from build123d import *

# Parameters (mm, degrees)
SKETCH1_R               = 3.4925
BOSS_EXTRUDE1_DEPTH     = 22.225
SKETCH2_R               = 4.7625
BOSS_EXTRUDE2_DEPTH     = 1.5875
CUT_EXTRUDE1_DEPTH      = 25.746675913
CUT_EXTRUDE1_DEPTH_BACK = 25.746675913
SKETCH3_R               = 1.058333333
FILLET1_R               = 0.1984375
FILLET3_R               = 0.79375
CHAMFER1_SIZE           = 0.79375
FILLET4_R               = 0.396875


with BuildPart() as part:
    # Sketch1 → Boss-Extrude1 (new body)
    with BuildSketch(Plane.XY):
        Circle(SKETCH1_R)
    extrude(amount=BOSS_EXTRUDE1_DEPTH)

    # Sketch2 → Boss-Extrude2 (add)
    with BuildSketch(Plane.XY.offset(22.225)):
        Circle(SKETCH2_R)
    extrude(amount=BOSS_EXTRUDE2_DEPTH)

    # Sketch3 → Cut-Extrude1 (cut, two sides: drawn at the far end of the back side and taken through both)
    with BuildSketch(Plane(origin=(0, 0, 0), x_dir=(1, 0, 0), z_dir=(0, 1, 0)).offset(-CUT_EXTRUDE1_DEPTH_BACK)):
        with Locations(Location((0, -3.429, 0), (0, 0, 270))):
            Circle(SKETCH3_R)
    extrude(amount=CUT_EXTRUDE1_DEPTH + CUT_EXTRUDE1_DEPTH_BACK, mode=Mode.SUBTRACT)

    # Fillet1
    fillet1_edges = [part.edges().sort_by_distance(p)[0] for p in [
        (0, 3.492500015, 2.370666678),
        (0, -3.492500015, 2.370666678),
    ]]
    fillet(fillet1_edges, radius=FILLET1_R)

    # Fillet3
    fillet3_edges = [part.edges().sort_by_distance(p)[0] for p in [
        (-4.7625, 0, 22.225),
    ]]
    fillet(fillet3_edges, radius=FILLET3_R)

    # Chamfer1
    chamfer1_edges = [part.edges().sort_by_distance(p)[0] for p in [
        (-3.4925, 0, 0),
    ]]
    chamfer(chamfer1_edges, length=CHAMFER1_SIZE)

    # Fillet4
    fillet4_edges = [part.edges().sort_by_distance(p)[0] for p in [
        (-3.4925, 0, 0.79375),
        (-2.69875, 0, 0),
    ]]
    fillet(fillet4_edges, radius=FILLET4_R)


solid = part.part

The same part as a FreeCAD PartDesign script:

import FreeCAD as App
import Part
import Sketcher
from FreeCAD import Vector
Q = App.Units.Quantity


def edges_at(feature, points):
    """Names of the edges that pass closest to the given points."""
    edges = feature.Shape.Edges
    near = lambda p: min(range(len(edges)), key=lambda i: edges[i].distToShape(Part.Vertex(*p))[0])
    return sorted({f"Edge{near(p) + 1}" for p in points})

doc = App.newDocument("Part")
body = doc.addObject("PartDesign::Body", "Body")

# Sketch on XY plane
sketch1 = body.newObject("Sketcher::SketchObject", "Sketch")
sketch1.AttachmentSupport = (doc.getObject("XY_Plane"), [""])
sketch1.MapMode = "FlatFace"
sketch1.addGeometry(Part.Circle(Vector(0, 0, 0), Vector(0, 0, 1), 3.5), False)
sketch1.addConstraint([
    Sketcher.Constraint("Coincident", 0, 3, -1, 1),
    Sketcher.Constraint("Diameter", 0, Q("0.275 in")),
])
pad1 = body.newObject("PartDesign::Pad", "Pad")
pad1.Profile = sketch1
pad1.Length = Q("0.875 in")

# Sketch on XY plane
sketch2 = body.newObject("Sketcher::SketchObject", "Sketch001")
sketch2.AttachmentSupport = (doc.getObject("XY_Plane"), [""])
sketch2.MapMode = "FlatFace"
sketch2.AttachmentOffset = App.Placement(Vector(0, 0, 0.875 * 25.4), App.Rotation())
sketch2.addGeometry(Part.Circle(Vector(0, 0, 0), Vector(0, 0, 1), 4.8), False)
sketch2.addConstraint([
    Sketcher.Constraint("Coincident", 0, 3, -1, 1),
    Sketcher.Constraint("Diameter", 0, Q("0.375 in")),
])
pad2 = body.newObject("PartDesign::Pad", "Pad001")
pad2.Profile = sketch2
pad2.Length = Q("0.0625 in")

# Sketch on XZ plane
sketch3 = body.newObject("Sketcher::SketchObject", "Sketch002")
sketch3.AttachmentSupport = (doc.getObject("XZ_Plane"), [""])
sketch3.MapMode = "FlatFace"
sketch3.addGeometry(Part.Circle(Vector(0, 3.4, 0), Vector(0, 0, 1), 1.1), False)
sketch3.addConstraint([
    Sketcher.Constraint("PointOnObject", 0, 3, -2),
    Sketcher.Constraint("DistanceY", -1, 1, 0, 3, Q("0.135 in")),
    Sketcher.Constraint("Diameter", 0, 2.116667),
])
pocket1 = body.newObject("PartDesign::Pocket", "Pocket")
pocket1.Profile = sketch3
pocket1.Type = "ThroughAll"
pocket1.Midplane = True
doc.recompute()

fillet = body.newObject("PartDesign::Fillet", "Fillet")
fillet.Base = (pocket1, edges_at(pocket1, [(0, 3.493, 2.371), (0, -3.493, 2.371)]))
fillet.Radius = 0.198437
doc.recompute()

fillet2 = body.newObject("PartDesign::Fillet", "Fillet001")
fillet2.Base = (fillet, edges_at(fillet, [(-4.763, 0, 22.225)]))
fillet2.Radius = Q("0.03125 in")
doc.recompute()

chamfer = body.newObject("PartDesign::Chamfer", "Chamfer")
chamfer.Base = (fillet2, edges_at(fillet2, [(-3.493, 0, 0)]))
chamfer.Size = Q("0.03125 in")
doc.recompute()

fillet3 = body.newObject("PartDesign::Fillet", "Fillet002")
fillet3.Base = (chamfer, edges_at(chamfer, [(-3.493, 0, 0.794), (-2.699, 0, 0)]))
fillet3.Radius = Q("0.015625 in")

doc.recompute()
